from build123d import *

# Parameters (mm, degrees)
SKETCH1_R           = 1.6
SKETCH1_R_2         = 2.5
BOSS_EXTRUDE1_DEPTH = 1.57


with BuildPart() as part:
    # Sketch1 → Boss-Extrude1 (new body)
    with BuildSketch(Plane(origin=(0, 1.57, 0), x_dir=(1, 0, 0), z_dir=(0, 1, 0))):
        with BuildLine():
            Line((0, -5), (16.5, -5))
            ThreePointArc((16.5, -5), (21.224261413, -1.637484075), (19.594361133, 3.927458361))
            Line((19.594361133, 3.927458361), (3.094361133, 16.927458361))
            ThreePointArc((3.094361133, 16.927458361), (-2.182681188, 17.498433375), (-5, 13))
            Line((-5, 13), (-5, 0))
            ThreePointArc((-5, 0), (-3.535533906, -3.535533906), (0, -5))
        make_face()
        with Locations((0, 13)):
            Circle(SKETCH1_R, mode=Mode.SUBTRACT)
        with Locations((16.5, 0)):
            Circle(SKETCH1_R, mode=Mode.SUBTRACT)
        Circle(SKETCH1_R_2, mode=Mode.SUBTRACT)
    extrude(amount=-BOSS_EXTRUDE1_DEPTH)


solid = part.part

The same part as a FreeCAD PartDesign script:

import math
import FreeCAD as App
import Part
import Sketcher

V = App.Vector
Q = App.Units.Quantity

doc = App.newDocument("Part")
body = doc.addObject("PartDesign::Body", "Body")

sketch1 = body.newObject("Sketcher::SketchObject", "Sketch")
sketch1.AttachmentSupport = (doc.getObject("XZ_Plane"), [""])
sketch1.MapMode = "FlatFace"
sketch1.AttachmentOffset = App.Placement(V(0, 0, -1.57), App.Rotation())
sketch1.addGeometry(Part.LineSegment(V(0, 5, 0), V(16.5, 5, 0)), False)
sketch1.addGeometry(Part.ArcOfCircle(Part.Circle(V(16.5, 0, 0), V(0, 0, 1), 5), math.radians(-52), math.radians(90)), False)
sketch1.addGeometry(Part.LineSegment(V(19.6, -3.9, 0), V(3.1, -16.9, 0)), False)
sketch1.addGeometry(Part.ArcOfCircle(Part.Circle(V(0, -13, 0), V(0, 0, 1), 5), math.radians(180), math.radians(308)), False)
sketch1.addGeometry(Part.LineSegment(V(-5, -13, 0), V(-5, 0, 0)), False)
sketch1.addGeometry(Part.ArcOfCircle(Part.Circle(V(0, 0, 0), V(0, 0, 1), 5), math.radians(90), math.radians(180)), False)
sketch1.addGeometry(Part.Circle(V(0, 0, 0), V(0, 0, 1), 2.5), False)
sketch1.addGeometry(Part.Circle(V(16.5, 0, 0), V(0, 0, 1), 1.6), False)
sketch1.addGeometry(Part.Circle(V(0, -13, 0), V(0, 0, 1), 1.6), False)
sketch1.addConstraint(Sketcher.Constraint("Tangent", 0, 2, 1, 2))
sketch1.addConstraint(Sketcher.Constraint("Tangent", 1, 1, 2, 1))
sketch1.addConstraint(Sketcher.Constraint("Tangent", 2, 2, 3, 2))
sketch1.addConstraint(Sketcher.Constraint("Tangent", 3, 1, 4, 1))
sketch1.addConstraint(Sketcher.Constraint("Tangent", 4, 2, 5, 2))
sketch1.addConstraint(Sketcher.Constraint("Tangent", 5, 1, 0, 1))
sketch1.addConstraint(Sketcher.Constraint("Horizontal", 0))
sketch1.addConstraint(Sketcher.Constraint("Vertical", 4))
sketch1.addConstraint(Sketcher.Constraint("Coincident", 5, 3, -1, 1))
sketch1.addConstraint(Sketcher.Constraint("Coincident", 6, 3, -1, 1))
sketch1.addConstraint(Sketcher.Constraint("Coincident", 7, 3, 1, 3))
sketch1.addConstraint(Sketcher.Constraint("Coincident", 8, 3, 3, 3))
sketch1.addConstraint(Sketcher.Constraint("Equal", 1, 3))
sketch1.addConstraint(Sketcher.Constraint("Equal", 3, 5))
sketch1.addConstraint(Sketcher.Constraint("Equal", 7, 8))
sketch1.addConstraint(Sketcher.Constraint("Diameter", 6, Q("5 mm")))
sketch1.addConstraint(Sketcher.Constraint("Radius", 1, Q("5 mm")))
sketch1.addConstraint(Sketcher.Constraint("Diameter", 7, Q("3.2 mm")))
sketch1.addConstraint(Sketcher.Constraint("DistanceY", 4, 1, 4, 2, Q("13 mm")))
sketch1.addConstraint(Sketcher.Constraint("DistanceX", 0, 1, 0, 2, Q("16.5 mm")))
pad1 = body.newObject("PartDesign::Pad", "Pad")
pad1.Profile = sketch1
pad1.Length = 1.57

doc.recompute()
